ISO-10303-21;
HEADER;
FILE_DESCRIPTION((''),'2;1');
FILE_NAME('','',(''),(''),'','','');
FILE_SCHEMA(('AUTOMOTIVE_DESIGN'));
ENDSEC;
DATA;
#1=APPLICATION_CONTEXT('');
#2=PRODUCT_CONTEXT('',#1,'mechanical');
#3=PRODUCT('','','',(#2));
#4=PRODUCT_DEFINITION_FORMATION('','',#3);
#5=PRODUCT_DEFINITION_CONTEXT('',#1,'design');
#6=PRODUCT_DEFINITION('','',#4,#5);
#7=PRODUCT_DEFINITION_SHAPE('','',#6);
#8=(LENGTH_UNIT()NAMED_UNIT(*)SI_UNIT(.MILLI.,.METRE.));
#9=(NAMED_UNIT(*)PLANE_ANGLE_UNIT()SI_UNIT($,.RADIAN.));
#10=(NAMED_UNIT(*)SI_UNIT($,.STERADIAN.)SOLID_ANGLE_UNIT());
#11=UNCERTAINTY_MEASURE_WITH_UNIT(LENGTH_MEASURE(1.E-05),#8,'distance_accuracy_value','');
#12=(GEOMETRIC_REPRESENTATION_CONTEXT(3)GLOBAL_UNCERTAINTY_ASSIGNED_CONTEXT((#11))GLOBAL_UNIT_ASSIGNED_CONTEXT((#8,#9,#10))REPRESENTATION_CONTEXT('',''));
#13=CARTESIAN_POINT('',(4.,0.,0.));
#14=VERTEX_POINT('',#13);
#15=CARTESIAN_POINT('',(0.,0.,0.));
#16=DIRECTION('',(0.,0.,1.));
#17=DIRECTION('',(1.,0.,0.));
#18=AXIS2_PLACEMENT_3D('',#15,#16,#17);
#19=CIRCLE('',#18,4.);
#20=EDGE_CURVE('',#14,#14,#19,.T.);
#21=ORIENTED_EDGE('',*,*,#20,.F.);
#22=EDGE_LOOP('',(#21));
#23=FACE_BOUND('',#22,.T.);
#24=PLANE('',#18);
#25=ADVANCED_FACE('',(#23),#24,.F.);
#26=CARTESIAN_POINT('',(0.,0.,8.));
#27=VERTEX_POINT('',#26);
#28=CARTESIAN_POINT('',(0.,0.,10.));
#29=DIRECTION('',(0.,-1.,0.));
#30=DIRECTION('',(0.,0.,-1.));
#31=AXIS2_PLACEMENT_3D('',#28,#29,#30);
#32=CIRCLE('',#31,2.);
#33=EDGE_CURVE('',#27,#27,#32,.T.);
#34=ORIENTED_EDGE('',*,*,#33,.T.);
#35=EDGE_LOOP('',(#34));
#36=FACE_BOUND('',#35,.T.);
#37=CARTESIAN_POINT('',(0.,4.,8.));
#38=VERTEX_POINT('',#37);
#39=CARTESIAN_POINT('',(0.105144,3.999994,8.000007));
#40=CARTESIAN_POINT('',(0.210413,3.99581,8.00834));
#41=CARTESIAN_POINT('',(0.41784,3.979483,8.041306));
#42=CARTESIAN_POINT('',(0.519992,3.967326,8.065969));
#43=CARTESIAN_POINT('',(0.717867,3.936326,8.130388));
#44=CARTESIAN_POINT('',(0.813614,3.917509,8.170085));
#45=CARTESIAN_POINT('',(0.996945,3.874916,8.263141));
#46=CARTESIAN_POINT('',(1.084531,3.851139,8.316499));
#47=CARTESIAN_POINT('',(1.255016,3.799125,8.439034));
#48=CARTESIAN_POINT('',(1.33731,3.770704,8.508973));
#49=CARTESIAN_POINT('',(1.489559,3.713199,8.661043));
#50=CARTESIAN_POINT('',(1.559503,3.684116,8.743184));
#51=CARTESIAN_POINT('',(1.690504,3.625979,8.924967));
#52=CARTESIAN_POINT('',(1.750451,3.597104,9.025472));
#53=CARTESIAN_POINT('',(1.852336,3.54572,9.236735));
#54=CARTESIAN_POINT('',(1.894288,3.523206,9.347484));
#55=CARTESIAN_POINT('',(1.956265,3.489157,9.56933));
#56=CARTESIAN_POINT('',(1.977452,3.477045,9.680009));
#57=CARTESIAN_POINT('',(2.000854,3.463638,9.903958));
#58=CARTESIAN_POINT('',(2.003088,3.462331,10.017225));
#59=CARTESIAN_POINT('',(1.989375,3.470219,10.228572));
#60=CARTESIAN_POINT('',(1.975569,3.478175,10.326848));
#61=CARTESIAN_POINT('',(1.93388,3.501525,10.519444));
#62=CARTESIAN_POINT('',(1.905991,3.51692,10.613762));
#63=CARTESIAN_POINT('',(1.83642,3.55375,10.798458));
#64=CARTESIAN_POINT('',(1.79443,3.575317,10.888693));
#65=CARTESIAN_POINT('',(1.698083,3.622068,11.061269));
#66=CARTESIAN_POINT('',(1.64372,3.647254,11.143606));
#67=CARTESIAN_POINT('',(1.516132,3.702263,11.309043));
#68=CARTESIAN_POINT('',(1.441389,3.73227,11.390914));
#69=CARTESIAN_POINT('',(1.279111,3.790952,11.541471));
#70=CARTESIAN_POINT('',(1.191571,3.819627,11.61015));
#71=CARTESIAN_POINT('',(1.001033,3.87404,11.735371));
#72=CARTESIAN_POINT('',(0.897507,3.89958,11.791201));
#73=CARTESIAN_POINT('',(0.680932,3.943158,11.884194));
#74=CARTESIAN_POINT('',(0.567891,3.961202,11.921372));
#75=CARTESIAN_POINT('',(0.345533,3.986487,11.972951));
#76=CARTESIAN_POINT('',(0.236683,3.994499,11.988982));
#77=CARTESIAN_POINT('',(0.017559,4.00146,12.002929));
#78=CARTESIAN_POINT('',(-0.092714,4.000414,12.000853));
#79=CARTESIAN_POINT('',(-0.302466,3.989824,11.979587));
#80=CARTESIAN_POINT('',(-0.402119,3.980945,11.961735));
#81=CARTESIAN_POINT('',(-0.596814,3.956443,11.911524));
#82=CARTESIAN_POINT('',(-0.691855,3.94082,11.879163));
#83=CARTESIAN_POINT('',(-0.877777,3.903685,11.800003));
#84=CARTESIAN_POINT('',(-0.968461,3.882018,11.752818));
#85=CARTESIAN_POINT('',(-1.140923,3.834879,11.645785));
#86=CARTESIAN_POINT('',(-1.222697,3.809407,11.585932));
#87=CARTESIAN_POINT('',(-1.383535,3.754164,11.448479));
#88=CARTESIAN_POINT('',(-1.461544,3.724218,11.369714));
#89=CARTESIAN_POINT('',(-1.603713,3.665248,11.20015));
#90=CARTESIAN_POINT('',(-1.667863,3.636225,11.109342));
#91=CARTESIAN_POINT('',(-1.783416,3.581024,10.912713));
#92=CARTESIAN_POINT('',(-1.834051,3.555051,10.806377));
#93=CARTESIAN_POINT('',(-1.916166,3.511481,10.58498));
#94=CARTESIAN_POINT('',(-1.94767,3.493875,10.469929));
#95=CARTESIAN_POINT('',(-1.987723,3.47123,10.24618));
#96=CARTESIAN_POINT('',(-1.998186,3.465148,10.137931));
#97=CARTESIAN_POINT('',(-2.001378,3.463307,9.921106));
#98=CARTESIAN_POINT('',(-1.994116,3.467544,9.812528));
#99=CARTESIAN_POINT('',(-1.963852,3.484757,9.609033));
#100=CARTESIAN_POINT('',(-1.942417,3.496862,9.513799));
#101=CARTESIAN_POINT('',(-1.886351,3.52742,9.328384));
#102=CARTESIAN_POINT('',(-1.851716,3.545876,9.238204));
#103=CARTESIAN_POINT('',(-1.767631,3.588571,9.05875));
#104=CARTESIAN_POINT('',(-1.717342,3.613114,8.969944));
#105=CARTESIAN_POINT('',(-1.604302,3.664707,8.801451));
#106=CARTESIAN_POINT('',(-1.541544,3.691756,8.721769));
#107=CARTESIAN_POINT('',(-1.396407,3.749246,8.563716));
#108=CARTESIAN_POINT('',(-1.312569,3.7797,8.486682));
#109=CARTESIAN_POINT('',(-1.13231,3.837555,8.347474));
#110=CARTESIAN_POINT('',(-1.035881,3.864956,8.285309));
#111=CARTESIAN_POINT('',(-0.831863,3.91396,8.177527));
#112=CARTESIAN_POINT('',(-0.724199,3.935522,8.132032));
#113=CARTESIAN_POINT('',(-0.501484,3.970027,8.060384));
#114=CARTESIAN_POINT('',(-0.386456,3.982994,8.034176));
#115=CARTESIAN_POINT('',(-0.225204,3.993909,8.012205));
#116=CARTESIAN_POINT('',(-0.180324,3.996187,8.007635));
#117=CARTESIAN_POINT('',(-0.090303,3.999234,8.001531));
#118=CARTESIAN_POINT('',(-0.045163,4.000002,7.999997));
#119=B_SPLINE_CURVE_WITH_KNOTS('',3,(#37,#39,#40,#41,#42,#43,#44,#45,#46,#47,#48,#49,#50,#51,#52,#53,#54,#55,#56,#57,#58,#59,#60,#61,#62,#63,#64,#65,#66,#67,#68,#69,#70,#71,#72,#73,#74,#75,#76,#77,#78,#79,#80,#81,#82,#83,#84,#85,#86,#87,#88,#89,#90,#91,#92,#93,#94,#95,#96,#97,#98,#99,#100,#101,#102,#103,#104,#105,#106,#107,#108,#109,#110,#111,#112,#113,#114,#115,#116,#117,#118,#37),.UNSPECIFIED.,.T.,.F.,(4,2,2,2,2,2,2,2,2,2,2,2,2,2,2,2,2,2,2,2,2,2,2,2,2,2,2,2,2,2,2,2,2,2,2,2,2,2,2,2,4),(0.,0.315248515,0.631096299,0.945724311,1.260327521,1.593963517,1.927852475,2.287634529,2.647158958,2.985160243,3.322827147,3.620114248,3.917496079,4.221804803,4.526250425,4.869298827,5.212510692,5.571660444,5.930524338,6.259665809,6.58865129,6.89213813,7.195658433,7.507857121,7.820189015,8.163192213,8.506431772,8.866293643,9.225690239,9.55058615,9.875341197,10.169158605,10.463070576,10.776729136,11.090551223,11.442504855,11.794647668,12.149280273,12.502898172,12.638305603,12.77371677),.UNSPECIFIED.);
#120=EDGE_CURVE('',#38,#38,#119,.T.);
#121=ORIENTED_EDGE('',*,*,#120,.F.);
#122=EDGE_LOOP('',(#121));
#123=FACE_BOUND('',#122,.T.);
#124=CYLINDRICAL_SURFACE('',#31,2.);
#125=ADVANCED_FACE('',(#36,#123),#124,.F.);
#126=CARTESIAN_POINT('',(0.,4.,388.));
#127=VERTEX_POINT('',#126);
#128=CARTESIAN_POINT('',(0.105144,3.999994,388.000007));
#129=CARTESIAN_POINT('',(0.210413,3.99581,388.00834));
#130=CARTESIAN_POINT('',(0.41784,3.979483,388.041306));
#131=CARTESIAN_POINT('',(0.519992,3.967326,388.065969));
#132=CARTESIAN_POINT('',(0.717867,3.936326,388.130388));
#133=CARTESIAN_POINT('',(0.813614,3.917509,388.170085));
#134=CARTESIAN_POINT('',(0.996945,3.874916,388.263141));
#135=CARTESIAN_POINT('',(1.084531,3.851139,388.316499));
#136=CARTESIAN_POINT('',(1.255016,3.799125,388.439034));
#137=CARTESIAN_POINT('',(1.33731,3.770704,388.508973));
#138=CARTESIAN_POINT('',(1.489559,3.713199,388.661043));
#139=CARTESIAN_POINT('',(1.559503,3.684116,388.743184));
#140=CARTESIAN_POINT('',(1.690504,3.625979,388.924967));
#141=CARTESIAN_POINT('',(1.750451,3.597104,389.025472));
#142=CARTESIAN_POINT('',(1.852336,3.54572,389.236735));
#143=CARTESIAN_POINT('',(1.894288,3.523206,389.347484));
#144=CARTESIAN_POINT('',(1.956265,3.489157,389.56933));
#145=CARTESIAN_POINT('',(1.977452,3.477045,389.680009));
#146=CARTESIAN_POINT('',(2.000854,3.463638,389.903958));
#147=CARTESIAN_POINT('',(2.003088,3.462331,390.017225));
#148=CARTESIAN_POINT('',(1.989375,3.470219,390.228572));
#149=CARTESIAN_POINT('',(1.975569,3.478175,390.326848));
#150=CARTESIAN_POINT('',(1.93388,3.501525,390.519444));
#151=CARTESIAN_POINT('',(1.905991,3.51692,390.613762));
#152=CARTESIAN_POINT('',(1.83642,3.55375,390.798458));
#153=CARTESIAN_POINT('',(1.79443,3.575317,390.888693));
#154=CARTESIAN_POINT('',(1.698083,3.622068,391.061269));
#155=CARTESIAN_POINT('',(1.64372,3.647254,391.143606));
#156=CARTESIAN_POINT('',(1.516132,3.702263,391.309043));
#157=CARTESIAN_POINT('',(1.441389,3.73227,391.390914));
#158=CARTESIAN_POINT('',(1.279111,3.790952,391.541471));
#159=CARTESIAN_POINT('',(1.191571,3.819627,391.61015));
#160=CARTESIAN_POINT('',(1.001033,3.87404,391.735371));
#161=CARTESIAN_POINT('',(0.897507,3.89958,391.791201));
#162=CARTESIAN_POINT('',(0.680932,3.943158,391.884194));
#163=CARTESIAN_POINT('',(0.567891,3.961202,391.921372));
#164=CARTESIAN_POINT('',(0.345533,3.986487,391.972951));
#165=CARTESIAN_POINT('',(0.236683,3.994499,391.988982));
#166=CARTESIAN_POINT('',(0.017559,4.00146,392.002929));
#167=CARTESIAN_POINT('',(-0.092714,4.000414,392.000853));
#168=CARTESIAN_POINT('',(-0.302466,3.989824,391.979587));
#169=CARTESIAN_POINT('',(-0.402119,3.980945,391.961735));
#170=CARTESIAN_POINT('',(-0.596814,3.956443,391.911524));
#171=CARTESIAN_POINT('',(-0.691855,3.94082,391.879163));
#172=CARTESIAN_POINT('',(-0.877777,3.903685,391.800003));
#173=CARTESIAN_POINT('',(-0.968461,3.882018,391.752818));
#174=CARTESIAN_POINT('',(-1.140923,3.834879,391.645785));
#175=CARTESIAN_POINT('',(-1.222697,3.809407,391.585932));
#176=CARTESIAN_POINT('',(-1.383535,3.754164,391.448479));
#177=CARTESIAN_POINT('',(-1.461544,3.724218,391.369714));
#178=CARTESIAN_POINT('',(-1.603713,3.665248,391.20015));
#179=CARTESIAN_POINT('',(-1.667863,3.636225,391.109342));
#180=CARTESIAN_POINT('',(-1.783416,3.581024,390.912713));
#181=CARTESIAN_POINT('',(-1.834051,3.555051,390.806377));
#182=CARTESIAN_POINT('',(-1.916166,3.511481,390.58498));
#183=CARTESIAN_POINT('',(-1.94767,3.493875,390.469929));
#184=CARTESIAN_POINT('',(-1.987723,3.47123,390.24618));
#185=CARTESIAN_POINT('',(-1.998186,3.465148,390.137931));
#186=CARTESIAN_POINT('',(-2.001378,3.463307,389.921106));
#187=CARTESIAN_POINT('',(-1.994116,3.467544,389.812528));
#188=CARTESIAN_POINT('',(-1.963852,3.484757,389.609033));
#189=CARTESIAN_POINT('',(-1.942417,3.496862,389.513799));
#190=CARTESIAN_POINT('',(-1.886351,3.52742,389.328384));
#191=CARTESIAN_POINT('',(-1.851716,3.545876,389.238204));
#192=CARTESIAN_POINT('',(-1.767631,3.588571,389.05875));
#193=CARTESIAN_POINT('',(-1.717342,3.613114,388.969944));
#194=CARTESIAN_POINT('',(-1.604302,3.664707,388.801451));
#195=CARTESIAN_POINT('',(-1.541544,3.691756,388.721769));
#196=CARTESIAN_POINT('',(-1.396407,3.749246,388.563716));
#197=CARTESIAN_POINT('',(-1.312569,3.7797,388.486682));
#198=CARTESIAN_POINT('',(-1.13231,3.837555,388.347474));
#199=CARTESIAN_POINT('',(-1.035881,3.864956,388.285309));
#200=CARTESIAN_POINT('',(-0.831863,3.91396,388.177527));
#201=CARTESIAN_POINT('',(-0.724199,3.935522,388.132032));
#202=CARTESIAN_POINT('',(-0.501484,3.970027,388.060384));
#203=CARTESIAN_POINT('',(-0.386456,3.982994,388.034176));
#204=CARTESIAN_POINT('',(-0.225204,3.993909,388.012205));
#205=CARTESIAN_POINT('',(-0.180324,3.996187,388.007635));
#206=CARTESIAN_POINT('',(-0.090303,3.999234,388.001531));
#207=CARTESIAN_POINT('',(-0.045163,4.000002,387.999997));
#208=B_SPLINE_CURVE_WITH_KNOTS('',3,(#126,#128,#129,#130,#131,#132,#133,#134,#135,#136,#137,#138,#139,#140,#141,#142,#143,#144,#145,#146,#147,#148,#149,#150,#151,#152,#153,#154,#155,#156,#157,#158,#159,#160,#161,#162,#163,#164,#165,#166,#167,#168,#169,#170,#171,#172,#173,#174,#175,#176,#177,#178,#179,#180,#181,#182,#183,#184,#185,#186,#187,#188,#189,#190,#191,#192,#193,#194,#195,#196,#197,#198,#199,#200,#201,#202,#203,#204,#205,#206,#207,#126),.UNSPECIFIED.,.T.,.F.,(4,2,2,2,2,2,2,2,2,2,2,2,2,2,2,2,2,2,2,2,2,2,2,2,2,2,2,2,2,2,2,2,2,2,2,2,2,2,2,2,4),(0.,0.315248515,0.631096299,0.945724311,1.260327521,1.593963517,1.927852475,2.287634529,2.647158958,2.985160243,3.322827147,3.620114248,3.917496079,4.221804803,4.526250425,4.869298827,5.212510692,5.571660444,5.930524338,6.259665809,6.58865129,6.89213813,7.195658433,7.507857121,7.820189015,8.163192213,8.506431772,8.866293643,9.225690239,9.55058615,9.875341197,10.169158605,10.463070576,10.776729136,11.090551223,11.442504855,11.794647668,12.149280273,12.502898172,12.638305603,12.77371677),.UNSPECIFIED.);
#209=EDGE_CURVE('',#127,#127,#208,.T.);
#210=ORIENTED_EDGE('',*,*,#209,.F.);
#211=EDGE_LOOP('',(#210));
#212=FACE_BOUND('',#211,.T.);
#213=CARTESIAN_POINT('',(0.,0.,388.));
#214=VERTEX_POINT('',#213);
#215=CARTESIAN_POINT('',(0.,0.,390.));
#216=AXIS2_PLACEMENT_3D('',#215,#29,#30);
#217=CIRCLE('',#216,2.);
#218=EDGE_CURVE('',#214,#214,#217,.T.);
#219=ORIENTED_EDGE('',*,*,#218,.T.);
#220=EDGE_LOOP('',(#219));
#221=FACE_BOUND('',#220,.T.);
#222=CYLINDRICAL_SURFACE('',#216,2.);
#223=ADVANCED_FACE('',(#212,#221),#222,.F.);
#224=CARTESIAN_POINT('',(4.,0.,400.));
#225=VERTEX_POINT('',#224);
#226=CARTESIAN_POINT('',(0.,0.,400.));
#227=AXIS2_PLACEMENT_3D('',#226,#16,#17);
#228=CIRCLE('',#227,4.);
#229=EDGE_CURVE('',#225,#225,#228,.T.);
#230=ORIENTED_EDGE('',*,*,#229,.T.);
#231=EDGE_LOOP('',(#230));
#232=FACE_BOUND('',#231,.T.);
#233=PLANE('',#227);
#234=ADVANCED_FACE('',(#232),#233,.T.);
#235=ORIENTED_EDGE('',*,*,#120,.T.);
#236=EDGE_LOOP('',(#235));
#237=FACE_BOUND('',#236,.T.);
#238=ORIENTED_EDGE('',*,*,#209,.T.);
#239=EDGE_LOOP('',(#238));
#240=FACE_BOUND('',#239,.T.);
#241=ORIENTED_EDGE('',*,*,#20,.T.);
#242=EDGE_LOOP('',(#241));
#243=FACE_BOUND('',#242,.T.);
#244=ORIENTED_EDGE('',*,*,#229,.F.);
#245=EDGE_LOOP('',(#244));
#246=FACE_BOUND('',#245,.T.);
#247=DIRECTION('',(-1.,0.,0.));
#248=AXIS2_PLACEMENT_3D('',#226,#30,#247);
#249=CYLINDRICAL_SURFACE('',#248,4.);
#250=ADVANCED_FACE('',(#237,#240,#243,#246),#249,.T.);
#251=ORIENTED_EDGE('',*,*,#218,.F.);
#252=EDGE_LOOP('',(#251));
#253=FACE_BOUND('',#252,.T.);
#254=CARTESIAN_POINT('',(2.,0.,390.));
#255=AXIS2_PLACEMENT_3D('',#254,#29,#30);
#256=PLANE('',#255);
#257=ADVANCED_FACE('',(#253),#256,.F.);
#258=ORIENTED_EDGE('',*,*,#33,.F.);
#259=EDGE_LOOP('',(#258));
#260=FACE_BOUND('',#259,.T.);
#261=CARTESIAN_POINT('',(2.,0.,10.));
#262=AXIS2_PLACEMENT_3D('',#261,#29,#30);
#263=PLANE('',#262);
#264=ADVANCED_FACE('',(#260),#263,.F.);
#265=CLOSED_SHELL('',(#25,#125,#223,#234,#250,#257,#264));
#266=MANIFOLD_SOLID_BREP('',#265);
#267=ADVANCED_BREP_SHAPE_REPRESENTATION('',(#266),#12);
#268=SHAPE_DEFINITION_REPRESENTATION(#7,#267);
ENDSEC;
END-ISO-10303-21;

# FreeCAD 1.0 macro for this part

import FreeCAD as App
import Part
import Sketcher
Q = App.Units.Quantity


def add_polygon(sketch, points):
    """Adds a closed chain of lines whose ends are joined by coincident constraints."""
    first, n = sketch.GeometryCount, len(points)
    for a, b in zip(points, points[1:] + points[:1]):
        sketch.addGeometry(Part.LineSegment(App.Vector(*a, 0), App.Vector(*b, 0)), False)
    for i in range(n):
        sketch.addConstraint(Sketcher.Constraint("Coincident", first + i, 2, first + (i + 1) % n, 1))

doc = App.newDocument("Part")
body = doc.addObject("PartDesign::Body", "Body")

sketch1 = doc.addObject("Sketcher::SketchObject", "Sketch")
body.addObject(sketch1)
sketch1.AttachmentSupport = (doc.XY_Plane, [""])
sketch1.MapMode = "FlatFace"
sketch1.addGeometry(Part.Circle(App.Vector(0, 0, 0), App.Vector(0, 0, 1), 4), False)
sketch1.addConstraint(Sketcher.Constraint("Coincident", 0, 3, -1, 1))
sketch1.addConstraint(Sketcher.Constraint("Diameter", 0, Q("8 mm")))
pad1 = doc.addObject("PartDesign::Pad", "Pad")
body.addObject(pad1)
pad1.Profile = sketch1
pad1.Length = 400

sketch2 = doc.addObject("Sketcher::SketchObject", "Sketch001")
body.addObject(sketch2)
sketch2.AttachmentSupport = (doc.YZ_Plane, [""])
sketch2.MapMode = "FlatFace"
add_polygon(sketch2, [(4, 10), (0, 10), (0, 8), (4, 8)])
sketch2.addGeometry(Part.LineSegment(App.Vector(0, 10, 0), App.Vector(4, 10, 0)), True)
sketch2.addConstraint(Sketcher.Constraint("Horizontal", 0))
sketch2.addConstraint(Sketcher.Constraint("Vertical", 1))
sketch2.addConstraint(Sketcher.Constraint("Horizontal", 2))
sketch2.addConstraint(Sketcher.Constraint("Vertical", 3))
sketch2.addConstraint(Sketcher.Constraint("Horizontal", 4))
sketch2.addConstraint(Sketcher.Constraint("Coincident", 4, 1, 0, 2))
sketch2.addConstraint(Sketcher.Constraint("PointOnObject", 0, 2, -2))
sketch2.addConstraint(Sketcher.Constraint("Vertical", 2, 2, 4, 2))
sketch2.addConstraint(Sketcher.Constraint("DistanceX", 0, 2, 0, 1, Q("4 mm")))
sketch2.addConstraint(Sketcher.Constraint("DistanceY", 1, 2, 1, 1, Q("2 mm")))
sketch2.addConstraint(Sketcher.Constraint("DistanceY", -1, 1, 0, 2, Q("10 mm")))
groove = doc.addObject("PartDesign::Groove", "Groove")
body.addObject(groove)
groove.Profile = sketch2
groove.ReferenceAxis = (sketch2, ["Axis0"])
groove.Angle = 360
doc.recompute()

linearpattern = doc.addObject("PartDesign::LinearPattern", "LinearPattern")
body.addObject(linearpattern)
linearpattern.Originals = [groove]
linearpattern.Direction = (doc.Z_Axis, [""])
linearpattern.Mode = "offset"
linearpattern.Offset = 380
linearpattern.Occurrences = 2
body.Tip = linearpattern

doc.recompute()
